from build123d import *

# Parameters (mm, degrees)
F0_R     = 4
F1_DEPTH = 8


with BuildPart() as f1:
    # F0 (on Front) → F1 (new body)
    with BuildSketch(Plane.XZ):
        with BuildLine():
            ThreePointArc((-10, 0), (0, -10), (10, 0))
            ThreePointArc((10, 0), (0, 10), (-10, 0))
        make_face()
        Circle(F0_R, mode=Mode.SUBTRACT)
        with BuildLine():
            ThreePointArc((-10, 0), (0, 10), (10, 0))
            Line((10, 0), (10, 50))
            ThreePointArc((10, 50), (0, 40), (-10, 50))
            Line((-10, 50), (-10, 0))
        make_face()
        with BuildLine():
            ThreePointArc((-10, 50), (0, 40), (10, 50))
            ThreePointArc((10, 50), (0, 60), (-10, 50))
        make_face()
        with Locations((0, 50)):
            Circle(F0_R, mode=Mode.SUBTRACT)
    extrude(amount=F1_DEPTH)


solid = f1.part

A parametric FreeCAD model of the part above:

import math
import FreeCAD as App
import Part
import Sketcher
Q = App.Units.Quantity

doc = App.newDocument("Part")
body = doc.addObject("PartDesign::Body", "Body")

# Sketch on XZ plane
sketch1 = body.newObject("Sketcher::SketchObject", "Sketch")
sketch1.AttachmentSupport = (doc.getObject("XZ_Plane"), [""])
sketch1.MapMode = "FlatFace"
sketch1.addGeometry([
    Part.ArcOfCircle(Part.Circle(App.Vector(0, 0, 0), App.Vector(0, 0, 1), 10), math.radians(180), math.radians(360)),  # 0
    Part.LineSegment(App.Vector(10, 0, 0), App.Vector(10, 50, 0)),  # 1
    Part.ArcOfCircle(Part.Circle(App.Vector(0, 50, 0), App.Vector(0, 0, 1), 10), math.radians(0), math.radians(180)),  # 2
    Part.LineSegment(App.Vector(-10, 50, 0), App.Vector(-10, 0, 0)),  # 3
    Part.Circle(App.Vector(0, 0, 0), App.Vector(0, 0, 1), 4),  # 4
    Part.Circle(App.Vector(0, 50, 0), App.Vector(0, 0, 1), 4),  # 5
], False)
sketch1.addConstraint([
    Sketcher.Constraint("Tangent", 0, 2, 1, 1),
    Sketcher.Constraint("Tangent", 1, 2, 2, 1),
    Sketcher.Constraint("Tangent", 2, 2, 3, 1),
    Sketcher.Constraint("Tangent", 3, 2, 0, 1),
    Sketcher.Constraint("Vertical", 1),
    Sketcher.Constraint("Vertical", 3),
    Sketcher.Constraint("Coincident", 0, 3, -1, 1),
    Sketcher.Constraint("Coincident", 4, 3, -1, 1),
    Sketcher.Constraint("Coincident", 5, 3, 2, 3),
    Sketcher.Constraint("Equal", 4, 5),
    Sketcher.Constraint("Diameter", 4, Q("8 mm")),
    Sketcher.Constraint("Radius", 0, Q("10 mm")),
    Sketcher.Constraint("DistanceY", 1, 1, 1, 2, Q("50 mm")),
])
pad1 = body.newObject("PartDesign::Pad", "Pad")
pad1.Profile = sketch1
pad1.Length = 8

doc.recompute()
